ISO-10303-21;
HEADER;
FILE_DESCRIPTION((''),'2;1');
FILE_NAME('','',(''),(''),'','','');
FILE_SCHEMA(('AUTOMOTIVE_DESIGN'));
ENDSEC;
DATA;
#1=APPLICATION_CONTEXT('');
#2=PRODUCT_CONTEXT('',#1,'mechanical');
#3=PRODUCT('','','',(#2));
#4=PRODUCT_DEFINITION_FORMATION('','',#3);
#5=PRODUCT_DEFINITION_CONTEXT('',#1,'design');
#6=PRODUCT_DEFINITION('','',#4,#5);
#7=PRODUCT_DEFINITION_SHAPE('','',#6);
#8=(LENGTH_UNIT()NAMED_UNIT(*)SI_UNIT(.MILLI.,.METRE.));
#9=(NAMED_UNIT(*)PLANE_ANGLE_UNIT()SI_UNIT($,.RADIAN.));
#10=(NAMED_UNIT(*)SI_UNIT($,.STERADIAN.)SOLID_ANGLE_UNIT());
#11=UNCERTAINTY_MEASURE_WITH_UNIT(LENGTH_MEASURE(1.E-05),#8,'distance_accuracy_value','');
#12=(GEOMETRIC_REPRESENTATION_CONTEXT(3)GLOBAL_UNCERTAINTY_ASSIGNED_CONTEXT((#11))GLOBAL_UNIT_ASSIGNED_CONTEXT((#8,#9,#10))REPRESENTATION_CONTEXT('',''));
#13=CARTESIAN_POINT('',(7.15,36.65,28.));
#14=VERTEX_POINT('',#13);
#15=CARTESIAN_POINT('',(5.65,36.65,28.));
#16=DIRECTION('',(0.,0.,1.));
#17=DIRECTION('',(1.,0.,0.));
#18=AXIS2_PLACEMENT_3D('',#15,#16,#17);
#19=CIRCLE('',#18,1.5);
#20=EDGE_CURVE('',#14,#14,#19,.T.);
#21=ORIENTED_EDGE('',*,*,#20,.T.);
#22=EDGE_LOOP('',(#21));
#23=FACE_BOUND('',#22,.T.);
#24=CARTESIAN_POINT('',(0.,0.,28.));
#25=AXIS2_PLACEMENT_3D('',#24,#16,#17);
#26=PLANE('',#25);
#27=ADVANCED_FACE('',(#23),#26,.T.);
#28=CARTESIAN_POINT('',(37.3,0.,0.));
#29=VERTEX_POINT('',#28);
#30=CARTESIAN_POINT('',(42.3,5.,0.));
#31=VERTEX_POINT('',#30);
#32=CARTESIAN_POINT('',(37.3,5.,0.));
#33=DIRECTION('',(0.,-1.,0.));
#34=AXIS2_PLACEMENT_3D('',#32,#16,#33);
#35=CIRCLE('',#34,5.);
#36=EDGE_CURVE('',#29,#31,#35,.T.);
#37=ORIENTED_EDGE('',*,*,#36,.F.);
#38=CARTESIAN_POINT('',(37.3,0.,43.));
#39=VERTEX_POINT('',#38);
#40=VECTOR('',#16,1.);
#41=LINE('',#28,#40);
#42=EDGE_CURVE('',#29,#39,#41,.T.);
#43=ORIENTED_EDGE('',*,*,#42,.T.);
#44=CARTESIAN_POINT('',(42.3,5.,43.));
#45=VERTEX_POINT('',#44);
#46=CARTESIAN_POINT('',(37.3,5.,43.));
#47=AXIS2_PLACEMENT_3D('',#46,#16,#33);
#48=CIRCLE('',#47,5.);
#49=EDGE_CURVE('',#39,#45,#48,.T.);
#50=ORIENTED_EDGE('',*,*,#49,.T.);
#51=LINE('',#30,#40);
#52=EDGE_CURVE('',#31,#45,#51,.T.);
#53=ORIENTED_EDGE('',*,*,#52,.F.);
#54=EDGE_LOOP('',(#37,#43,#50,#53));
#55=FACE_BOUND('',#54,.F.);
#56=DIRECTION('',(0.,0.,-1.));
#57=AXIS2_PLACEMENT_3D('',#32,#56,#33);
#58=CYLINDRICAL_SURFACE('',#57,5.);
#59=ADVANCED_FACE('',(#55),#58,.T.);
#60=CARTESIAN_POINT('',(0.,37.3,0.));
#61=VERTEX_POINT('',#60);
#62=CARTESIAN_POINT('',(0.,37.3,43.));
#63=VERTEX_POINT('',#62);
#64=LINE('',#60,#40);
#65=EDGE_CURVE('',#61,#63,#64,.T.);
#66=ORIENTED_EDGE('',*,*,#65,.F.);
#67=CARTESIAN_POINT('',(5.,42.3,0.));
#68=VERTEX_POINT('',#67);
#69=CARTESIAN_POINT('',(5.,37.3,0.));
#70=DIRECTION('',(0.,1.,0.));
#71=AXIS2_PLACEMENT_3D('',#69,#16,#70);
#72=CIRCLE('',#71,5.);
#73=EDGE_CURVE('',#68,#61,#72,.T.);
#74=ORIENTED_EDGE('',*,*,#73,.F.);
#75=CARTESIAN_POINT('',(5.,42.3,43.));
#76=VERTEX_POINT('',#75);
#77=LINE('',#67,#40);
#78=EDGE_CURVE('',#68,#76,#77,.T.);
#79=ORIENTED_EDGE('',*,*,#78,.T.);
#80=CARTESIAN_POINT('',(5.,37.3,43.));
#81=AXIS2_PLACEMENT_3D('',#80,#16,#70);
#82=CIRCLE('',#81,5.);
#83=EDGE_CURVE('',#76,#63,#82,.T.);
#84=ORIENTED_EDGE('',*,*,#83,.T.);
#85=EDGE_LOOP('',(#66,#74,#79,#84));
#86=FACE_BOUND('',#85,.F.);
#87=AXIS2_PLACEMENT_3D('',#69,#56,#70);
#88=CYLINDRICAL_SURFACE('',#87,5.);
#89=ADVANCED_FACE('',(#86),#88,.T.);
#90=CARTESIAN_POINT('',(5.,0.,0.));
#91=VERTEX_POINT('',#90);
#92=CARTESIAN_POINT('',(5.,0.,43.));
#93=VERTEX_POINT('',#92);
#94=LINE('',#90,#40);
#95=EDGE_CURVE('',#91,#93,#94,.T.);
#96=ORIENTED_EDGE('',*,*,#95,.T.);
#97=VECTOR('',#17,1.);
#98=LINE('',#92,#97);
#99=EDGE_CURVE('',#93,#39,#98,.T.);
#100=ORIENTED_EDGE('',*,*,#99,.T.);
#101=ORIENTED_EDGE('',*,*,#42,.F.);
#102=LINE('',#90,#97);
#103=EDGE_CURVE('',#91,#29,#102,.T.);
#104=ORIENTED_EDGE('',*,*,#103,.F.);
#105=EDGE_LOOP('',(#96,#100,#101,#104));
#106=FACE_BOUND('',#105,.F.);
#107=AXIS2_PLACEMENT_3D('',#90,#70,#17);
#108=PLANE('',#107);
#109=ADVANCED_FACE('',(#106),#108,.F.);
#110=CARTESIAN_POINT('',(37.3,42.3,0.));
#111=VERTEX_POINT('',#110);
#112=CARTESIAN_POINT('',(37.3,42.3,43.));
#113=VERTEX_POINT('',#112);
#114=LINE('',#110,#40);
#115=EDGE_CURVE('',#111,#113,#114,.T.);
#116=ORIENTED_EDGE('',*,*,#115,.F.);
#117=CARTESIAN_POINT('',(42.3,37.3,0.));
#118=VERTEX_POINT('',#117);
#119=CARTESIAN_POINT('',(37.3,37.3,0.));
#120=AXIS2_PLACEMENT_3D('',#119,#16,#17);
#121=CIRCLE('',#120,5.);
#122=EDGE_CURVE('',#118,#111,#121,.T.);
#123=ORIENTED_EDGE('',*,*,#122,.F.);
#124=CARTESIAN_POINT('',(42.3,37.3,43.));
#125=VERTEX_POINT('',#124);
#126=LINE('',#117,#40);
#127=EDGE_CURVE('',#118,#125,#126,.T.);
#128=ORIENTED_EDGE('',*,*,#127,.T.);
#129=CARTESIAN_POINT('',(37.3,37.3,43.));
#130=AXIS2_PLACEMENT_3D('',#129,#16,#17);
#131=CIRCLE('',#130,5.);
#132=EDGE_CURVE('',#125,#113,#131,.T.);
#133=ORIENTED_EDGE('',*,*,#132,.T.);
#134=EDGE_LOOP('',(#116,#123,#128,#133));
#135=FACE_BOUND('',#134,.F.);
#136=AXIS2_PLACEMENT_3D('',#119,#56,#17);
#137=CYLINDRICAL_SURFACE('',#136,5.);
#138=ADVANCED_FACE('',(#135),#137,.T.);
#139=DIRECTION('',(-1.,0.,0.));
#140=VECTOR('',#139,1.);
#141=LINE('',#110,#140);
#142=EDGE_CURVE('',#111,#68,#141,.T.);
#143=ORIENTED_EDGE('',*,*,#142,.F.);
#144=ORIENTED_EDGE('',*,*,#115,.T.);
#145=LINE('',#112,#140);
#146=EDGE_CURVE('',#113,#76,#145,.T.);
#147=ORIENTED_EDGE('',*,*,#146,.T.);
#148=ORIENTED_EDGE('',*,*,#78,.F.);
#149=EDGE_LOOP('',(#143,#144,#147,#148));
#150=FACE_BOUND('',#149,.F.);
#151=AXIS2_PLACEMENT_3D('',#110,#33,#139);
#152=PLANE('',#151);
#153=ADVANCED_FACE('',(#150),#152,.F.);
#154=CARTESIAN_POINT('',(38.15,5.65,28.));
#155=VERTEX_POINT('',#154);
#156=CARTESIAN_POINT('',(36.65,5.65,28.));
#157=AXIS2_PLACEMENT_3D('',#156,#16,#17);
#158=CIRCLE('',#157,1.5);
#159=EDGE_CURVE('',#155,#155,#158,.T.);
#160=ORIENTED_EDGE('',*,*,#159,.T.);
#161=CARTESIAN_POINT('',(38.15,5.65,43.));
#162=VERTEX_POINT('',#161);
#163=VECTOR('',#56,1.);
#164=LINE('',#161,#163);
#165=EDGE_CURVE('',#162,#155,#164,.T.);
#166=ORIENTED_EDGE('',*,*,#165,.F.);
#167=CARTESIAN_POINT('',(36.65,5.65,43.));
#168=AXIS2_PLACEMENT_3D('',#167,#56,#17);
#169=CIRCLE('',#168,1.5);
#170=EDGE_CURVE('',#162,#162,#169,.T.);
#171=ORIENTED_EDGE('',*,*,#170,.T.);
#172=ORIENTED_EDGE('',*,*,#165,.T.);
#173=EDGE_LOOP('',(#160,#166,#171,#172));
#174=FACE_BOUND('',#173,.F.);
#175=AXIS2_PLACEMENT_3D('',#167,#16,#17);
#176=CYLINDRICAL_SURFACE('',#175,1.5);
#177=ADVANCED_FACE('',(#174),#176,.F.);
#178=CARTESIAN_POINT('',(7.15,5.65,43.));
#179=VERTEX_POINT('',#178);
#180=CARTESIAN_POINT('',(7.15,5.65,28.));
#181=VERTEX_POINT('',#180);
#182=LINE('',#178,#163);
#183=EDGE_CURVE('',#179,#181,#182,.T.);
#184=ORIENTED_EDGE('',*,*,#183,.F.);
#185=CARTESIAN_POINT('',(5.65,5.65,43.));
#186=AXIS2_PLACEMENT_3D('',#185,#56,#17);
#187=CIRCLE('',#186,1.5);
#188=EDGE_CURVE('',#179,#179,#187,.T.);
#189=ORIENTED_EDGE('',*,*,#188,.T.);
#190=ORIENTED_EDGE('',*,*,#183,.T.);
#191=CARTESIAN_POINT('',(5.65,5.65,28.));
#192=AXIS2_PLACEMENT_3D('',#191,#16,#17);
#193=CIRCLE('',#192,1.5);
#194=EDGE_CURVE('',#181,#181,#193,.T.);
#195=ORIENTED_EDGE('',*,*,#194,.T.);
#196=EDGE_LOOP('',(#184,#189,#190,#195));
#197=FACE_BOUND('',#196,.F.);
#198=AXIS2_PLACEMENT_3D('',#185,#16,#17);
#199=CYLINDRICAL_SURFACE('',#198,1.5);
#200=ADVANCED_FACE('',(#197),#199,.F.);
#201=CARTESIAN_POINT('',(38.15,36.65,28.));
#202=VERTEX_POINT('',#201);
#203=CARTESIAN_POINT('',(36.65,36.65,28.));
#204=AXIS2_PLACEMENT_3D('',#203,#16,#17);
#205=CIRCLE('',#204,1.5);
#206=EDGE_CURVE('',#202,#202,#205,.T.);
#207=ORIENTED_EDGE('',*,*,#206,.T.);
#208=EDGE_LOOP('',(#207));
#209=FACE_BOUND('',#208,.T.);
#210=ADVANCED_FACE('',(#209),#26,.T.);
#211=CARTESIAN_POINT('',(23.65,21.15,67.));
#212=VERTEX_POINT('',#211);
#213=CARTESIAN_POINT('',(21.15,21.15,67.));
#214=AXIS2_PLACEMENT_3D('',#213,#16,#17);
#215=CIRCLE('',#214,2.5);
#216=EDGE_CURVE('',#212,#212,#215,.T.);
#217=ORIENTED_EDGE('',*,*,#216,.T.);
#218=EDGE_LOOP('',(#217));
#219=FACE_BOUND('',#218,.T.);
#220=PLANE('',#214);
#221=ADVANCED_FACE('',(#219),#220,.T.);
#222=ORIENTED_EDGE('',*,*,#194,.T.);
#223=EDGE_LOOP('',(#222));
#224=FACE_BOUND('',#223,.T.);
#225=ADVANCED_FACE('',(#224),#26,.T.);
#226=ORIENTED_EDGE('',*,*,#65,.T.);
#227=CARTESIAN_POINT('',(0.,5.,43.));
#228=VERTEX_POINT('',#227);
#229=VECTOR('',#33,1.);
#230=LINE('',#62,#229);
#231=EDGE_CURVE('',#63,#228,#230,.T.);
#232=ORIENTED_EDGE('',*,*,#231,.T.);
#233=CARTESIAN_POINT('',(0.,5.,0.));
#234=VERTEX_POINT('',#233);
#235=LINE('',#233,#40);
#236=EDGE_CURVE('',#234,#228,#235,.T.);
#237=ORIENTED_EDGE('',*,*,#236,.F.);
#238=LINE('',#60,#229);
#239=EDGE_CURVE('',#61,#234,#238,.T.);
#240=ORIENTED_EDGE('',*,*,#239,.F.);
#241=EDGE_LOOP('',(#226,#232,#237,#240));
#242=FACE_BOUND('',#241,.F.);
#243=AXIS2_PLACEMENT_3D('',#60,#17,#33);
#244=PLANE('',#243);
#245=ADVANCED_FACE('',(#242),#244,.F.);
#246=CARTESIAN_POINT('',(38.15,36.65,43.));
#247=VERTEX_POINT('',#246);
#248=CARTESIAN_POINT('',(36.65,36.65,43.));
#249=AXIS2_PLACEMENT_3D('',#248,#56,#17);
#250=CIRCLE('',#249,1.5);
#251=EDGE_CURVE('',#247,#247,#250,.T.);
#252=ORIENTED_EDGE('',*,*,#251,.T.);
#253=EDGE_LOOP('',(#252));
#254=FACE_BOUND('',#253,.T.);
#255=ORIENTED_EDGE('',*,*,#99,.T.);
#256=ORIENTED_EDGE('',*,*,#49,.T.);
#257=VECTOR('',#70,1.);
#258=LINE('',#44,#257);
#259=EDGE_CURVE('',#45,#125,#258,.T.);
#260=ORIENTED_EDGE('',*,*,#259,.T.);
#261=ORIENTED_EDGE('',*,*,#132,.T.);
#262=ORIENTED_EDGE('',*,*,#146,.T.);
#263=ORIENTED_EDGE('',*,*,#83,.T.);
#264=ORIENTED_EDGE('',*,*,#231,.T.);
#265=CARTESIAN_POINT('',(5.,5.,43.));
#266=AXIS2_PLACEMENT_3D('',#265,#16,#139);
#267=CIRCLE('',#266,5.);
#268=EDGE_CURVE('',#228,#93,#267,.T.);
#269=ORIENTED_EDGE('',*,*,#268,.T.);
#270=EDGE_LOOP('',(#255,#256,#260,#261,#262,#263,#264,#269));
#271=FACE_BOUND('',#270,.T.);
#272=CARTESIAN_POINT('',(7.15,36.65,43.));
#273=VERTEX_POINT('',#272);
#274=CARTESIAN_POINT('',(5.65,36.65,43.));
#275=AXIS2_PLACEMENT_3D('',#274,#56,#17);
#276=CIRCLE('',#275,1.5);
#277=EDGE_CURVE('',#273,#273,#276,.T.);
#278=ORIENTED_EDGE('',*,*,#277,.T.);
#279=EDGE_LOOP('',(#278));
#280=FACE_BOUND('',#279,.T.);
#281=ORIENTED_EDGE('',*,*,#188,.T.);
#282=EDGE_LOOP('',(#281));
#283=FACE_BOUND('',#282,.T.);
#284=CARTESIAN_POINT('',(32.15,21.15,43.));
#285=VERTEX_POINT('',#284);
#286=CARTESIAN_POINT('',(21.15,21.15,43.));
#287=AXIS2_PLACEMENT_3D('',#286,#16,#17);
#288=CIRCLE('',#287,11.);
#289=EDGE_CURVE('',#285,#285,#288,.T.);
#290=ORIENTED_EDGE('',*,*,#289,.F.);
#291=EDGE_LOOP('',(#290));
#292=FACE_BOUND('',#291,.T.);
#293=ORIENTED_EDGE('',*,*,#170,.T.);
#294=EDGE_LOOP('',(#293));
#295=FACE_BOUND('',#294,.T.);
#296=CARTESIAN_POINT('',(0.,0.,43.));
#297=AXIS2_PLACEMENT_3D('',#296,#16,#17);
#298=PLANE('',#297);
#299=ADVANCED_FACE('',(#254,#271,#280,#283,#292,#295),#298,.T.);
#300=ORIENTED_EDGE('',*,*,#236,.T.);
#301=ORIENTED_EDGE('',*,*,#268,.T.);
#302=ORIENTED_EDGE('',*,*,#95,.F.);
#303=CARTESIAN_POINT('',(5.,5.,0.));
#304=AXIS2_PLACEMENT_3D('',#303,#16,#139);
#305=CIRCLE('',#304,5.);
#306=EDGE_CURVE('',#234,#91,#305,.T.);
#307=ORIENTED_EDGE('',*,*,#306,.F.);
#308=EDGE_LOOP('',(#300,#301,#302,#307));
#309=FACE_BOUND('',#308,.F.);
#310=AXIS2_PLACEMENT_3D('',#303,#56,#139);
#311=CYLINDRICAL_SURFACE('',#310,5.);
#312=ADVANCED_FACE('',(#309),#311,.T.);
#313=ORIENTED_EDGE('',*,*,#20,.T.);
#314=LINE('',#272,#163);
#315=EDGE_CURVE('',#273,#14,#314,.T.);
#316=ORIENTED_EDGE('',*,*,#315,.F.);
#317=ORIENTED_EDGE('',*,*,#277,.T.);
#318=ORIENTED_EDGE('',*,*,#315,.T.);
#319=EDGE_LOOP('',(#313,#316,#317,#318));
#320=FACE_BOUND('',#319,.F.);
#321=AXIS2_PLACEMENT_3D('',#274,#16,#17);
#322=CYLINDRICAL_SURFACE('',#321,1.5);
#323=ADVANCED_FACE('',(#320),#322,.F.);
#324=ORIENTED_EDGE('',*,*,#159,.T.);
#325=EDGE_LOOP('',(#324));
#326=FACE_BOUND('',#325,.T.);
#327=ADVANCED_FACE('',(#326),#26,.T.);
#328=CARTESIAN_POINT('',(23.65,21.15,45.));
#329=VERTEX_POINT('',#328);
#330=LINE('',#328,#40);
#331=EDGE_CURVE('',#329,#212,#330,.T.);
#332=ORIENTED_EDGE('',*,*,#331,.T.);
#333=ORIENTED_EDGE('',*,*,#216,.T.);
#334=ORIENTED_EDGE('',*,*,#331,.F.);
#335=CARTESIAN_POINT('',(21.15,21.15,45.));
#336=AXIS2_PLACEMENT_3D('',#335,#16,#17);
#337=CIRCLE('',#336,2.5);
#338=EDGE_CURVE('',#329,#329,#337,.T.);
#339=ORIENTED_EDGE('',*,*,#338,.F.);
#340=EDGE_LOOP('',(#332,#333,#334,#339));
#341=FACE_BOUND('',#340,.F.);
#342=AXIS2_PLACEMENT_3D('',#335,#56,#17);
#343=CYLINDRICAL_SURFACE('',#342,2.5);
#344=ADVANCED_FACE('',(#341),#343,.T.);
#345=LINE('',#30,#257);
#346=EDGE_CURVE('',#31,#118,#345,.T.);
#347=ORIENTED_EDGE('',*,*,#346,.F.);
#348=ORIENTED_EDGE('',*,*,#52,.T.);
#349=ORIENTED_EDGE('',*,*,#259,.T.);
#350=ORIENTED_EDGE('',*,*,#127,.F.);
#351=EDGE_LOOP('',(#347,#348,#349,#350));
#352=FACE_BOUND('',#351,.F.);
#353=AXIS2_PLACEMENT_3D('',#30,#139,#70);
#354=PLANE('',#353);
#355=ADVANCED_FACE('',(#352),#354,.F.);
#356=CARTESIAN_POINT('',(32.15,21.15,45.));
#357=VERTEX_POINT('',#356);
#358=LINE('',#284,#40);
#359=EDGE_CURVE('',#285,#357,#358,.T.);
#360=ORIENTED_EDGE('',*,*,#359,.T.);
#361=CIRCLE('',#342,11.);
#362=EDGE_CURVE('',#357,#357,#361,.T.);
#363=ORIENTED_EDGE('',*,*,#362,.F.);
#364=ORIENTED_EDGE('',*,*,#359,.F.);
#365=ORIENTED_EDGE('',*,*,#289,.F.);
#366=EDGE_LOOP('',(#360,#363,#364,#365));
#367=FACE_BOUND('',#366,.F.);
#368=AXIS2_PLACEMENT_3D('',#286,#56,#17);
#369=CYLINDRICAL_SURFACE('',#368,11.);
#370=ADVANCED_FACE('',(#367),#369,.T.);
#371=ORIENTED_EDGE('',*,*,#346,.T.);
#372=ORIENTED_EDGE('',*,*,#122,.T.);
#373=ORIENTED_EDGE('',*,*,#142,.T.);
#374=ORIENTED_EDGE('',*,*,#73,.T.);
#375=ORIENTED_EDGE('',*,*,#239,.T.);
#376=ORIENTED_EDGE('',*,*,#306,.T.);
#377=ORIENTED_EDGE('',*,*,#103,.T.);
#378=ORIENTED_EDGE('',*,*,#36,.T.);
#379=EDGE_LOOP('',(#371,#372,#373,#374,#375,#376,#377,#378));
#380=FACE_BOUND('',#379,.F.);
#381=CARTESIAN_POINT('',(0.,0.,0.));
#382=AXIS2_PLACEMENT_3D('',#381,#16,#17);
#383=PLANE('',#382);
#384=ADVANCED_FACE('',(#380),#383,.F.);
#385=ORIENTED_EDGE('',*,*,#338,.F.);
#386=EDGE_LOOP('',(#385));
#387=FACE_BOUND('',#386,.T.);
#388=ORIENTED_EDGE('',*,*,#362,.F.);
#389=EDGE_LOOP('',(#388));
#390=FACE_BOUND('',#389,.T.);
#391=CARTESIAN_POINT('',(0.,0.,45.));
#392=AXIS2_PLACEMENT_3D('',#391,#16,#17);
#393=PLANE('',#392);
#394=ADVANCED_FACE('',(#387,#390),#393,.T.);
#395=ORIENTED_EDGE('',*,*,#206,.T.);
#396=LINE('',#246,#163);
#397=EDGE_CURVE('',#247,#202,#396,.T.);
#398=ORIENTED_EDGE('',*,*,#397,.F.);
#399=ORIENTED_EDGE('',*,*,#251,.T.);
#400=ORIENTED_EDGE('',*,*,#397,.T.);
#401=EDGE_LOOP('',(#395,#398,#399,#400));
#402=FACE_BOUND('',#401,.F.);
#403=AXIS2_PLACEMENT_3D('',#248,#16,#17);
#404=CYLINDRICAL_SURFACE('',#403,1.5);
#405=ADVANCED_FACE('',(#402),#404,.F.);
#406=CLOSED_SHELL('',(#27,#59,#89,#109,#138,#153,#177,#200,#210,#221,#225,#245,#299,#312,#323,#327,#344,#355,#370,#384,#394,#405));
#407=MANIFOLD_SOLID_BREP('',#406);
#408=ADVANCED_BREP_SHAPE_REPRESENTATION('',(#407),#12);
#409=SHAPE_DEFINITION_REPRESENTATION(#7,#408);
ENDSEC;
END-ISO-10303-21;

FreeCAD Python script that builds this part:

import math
import FreeCAD as App
import Part
import Sketcher
from FreeCAD import Vector

doc = App.newDocument("Part")
params = doc.addObject("Spreadsheet::Sheet", "Params")
for row, (alias, value) in enumerate([
    ("sketch1_radius", "5 mm"),
    ("pad1_length", "43 mm"),
    ("sketch2_diameter", "3 mm"),
    ("pocket1_length", "15 mm"),
    ("sketch3_diameter", "22 mm"),
    ("pad2_length", "2 mm"),
    ("sketch4_diameter", "5 mm"),
    ("pad3_length", "22 mm"),
], start=1):
    params.set(f"A{row}", alias)
    params.set(f"B{row}", "=" + value)
    params.setAlias(f"B{row}", alias)

body = doc.addObject("PartDesign::Body", "Body")

# Sketch on XY plane
sketch1 = body.newObject("Sketcher::SketchObject", "Sketch")
sketch1.AttachmentSupport = (doc.getObject("XY_Plane"), [""])
sketch1.MapMode = "FlatFace"
sketch1.addGeometry([
    Part.ArcOfCircle(Part.Circle(Vector(5, 5, 0), Vector(0, 0, 1), 5), math.radians(180), math.radians(270)),  # 0
    Part.LineSegment(Vector(5, 0, 0), Vector(37, 0, 0)),  # 1
    Part.ArcOfCircle(Part.Circle(Vector(37, 5, 0), Vector(0, 0, 1), 5), math.radians(-90), math.radians(0)),  # 2
    Part.LineSegment(Vector(42, 5, 0), Vector(42, 37, 0)),  # 3
    Part.ArcOfCircle(Part.Circle(Vector(37, 37, 0), Vector(0, 0, 1), 5), math.radians(0), math.radians(90)),  # 4
    Part.LineSegment(Vector(37, 42, 0), Vector(5, 42, 0)),  # 5
    Part.ArcOfCircle(Part.Circle(Vector(5, 37, 0), Vector(0, 0, 1), 5), math.radians(90), math.radians(180)),  # 6
    Part.LineSegment(Vector(0, 37, 0), Vector(0, 5, 0)),  # 7
], False)
sketch1.addConstraint([
    Sketcher.Constraint("Tangent", 0, 2, 1, 1),
    Sketcher.Constraint("Tangent", 1, 2, 2, 1),
    Sketcher.Constraint("Tangent", 2, 2, 3, 1),
    Sketcher.Constraint("Tangent", 3, 2, 4, 1),
    Sketcher.Constraint("Tangent", 4, 2, 5, 1),
    Sketcher.Constraint("Tangent", 5, 2, 6, 1),
    Sketcher.Constraint("Tangent", 6, 2, 7, 1),
    Sketcher.Constraint("Tangent", 7, 2, 0, 1),
    Sketcher.Constraint("Horizontal", 1),
    Sketcher.Constraint("Vertical", 3),
    Sketcher.Constraint("Horizontal", 5),
    Sketcher.Constraint("Vertical", 7),
    Sketcher.Constraint("Equal", 0, 2),
    Sketcher.Constraint("Equal", 2, 4),
    Sketcher.Constraint("Equal", 4, 6),
    Sketcher.Constraint("PointOnObject", 0, 2, -1),
    Sketcher.Constraint("PointOnObject", 6, 2, -2),
    Sketcher.Constraint("Equal", 5, 3),
    Sketcher.Constraint("Radius", 0, 5.0),
    Sketcher.Constraint("DistanceX", -1, 1, 2, 2, 42.3),
])
sketch1.setExpression("Constraints[18]", "Params.sketch1_radius")
pad1 = body.newObject("PartDesign::Pad", "Pad")
pad1.Profile = sketch1
pad1.setExpression("Length", "Params.pad1_length")

# Sketch on XY plane
sketch2 = body.newObject("Sketcher::SketchObject", "Sketch001")
sketch2.AttachmentSupport = (doc.getObject("XY_Plane"), [""])
sketch2.MapMode = "FlatFace"
sketch2.AttachmentOffset = App.Placement(Vector(0, 0, 43), App.Rotation())
sketch2.addGeometry([
    Part.Circle(Vector(5.7, 36.6, 0), Vector(0, 0, 1), 1.5),
    Part.Circle(Vector(36.6, 5.7, 0), Vector(0, 0, 1), 1.5),
    Part.Circle(Vector(36.6, 36.6, 0), Vector(0, 0, 1), 1.5),
    Part.Circle(Vector(5.7, 5.7, 0), Vector(0, 0, 1), 1.5),
], False)
sketch2.addConstraint([
    Sketcher.Constraint("Equal", 0, 1),
    Sketcher.Constraint("Equal", 1, 2),
    Sketcher.Constraint("Equal", 2, 3),
    Sketcher.Constraint("Horizontal", 0, 3, 2, 3),
    Sketcher.Constraint("Horizontal", 1, 3, 3, 3),
    Sketcher.Constraint("Vertical", 1, 3, 2, 3),
    Sketcher.Constraint("Vertical", 0, 3, 3, 3),
    Sketcher.Constraint("Diameter", 0, 3.0),
    Sketcher.Constraint("DistanceX", 0, 3, 1, 3, 31.0),
    Sketcher.Constraint("DistanceY", 1, 3, 0, 3, 31.0),
    Sketcher.Constraint("DistanceX", -1, 1, 0, 3, 5.65),
    Sketcher.Constraint("DistanceY", -1, 1, 0, 3, 36.65),
])
sketch2.setExpression("Constraints[7]", "Params.sketch2_diameter")
pocket1 = body.newObject("PartDesign::Pocket", "Pocket")
pocket1.Profile = sketch2
pocket1.setExpression("Length", "Params.pocket1_length")

# Sketch on XY plane
sketch3 = body.newObject("Sketcher::SketchObject", "Sketch002")
sketch3.AttachmentSupport = (doc.getObject("XY_Plane"), [""])
sketch3.MapMode = "FlatFace"
sketch3.AttachmentOffset = App.Placement(Vector(0, 0, 43), App.Rotation())
sketch3.addGeometry(Part.Circle(Vector(21, 21, 0), Vector(0, 0, 1), 11), False)
sketch3.addConstraint([
    Sketcher.Constraint("Diameter", 0, 22.0),
    Sketcher.Constraint("DistanceX", -1, 1, 0, 3, 21.15),
    Sketcher.Constraint("DistanceY", -1, 1, 0, 3, 21.15),
])
sketch3.setExpression("Constraints[0]", "Params.sketch3_diameter")
pad2 = body.newObject("PartDesign::Pad", "Pad001")
pad2.Profile = sketch3
pad2.setExpression("Length", "Params.pad2_length")

# Sketch on XY plane
sketch4 = body.newObject("Sketcher::SketchObject", "Sketch003")
sketch4.AttachmentSupport = (doc.getObject("XY_Plane"), [""])
sketch4.MapMode = "FlatFace"
sketch4.AttachmentOffset = App.Placement(Vector(0, 0, 45), App.Rotation())
sketch4.addGeometry(Part.Circle(Vector(21.1, 21.1, 0), Vector(0, 0, 1), 2.5), False)
sketch4.addConstraint([
    Sketcher.Constraint("Diameter", 0, 5.0),
    Sketcher.Constraint("DistanceX", -1, 1, 0, 3, 21.15),
    Sketcher.Constraint("DistanceY", -1, 1, 0, 3, 21.15),
])
sketch4.setExpression("Constraints[0]", "Params.sketch4_diameter")
pad3 = body.newObject("PartDesign::Pad", "Pad002")
pad3.Profile = sketch4
pad3.setExpression("Length", "Params.pad3_length")

doc.recompute()
